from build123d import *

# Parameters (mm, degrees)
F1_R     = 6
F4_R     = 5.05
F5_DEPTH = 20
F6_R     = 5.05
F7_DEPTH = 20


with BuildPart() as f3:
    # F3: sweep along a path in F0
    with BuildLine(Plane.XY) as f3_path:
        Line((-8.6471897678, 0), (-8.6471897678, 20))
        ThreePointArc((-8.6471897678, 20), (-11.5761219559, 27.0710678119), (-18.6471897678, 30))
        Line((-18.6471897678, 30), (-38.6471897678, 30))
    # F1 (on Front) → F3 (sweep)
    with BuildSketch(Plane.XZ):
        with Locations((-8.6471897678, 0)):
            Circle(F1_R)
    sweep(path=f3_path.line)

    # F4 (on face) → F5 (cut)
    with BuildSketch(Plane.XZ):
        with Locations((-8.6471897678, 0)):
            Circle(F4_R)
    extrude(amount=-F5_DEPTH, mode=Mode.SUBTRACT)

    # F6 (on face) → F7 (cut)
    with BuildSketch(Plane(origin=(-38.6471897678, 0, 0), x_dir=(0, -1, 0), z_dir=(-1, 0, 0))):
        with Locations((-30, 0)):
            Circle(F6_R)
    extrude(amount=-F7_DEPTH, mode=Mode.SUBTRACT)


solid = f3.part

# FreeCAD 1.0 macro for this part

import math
import FreeCAD as App
import Part
import Sketcher
Q = App.Units.Quantity

doc = App.newDocument("Part")
body = doc.addObject("PartDesign::Body", "Body")

sketch1 = doc.addObject("Sketcher::SketchObject", "Sketch")
body.addObject(sketch1)
sketch1.AttachmentSupport = (doc.XZ_Plane, [""])
sketch1.MapMode = "FlatFace"
sketch1.addGeometry(Part.Circle(App.Vector(-9, 0, 0), App.Vector(0, 0, 1), 6), False)
sketch1.addConstraint([
    Sketcher.Constraint("PointOnObject", 0, 3, -1),
    Sketcher.Constraint("Diameter", 0, Q("12 mm")),
    Sketcher.Constraint("DistanceX", 0, 3, -1, 1, Q("8.64719 mm")),
])

sketch2 = doc.addObject("Sketcher::SketchObject", "Sketch001")
body.addObject(sketch2)
sketch2.AttachmentSupport = (doc.XY_Plane, [""])
sketch2.MapMode = "FlatFace"
sketch2.addGeometry([
    Part.LineSegment(App.Vector(-9, 0, 0), App.Vector(-9, 20, 0)),
    Part.ArcOfCircle(Part.Circle(App.Vector(-19, 20, 0), App.Vector(0, 0, 1), 10), math.radians(0), math.radians(90)),
    Part.LineSegment(App.Vector(-19, 30, 0), App.Vector(-39, 30, 0)),
], False)
sketch2.addConstraint([
    Sketcher.Constraint("Tangent", 0, 2, 1, 1),
    Sketcher.Constraint("Tangent", 1, 2, 2, 1),
    Sketcher.Constraint("Vertical", 0),
    Sketcher.Constraint("Horizontal", 2),
    Sketcher.Constraint("PointOnObject", 0, 1, -1),
    Sketcher.Constraint("Equal", 2, 0),
    Sketcher.Constraint("Radius", 1, Q("10 mm")),
    Sketcher.Constraint("DistanceX", 2, 2, 2, 1, Q("20 mm")),
    Sketcher.Constraint("DistanceX", 1, 3, -1, 1, Q("18.64719 mm")),
])
doc.recompute()

additivepipe = doc.addObject("PartDesign::AdditivePipe", "AdditivePipe")
body.addObject(additivepipe)
additivepipe.Profile = sketch1
additivepipe.Spine = (sketch2, ["Edge1", "Edge2", "Edge3"])

sketch3 = doc.addObject("Sketcher::SketchObject", "Sketch002")
body.addObject(sketch3)
sketch3.AttachmentSupport = (doc.XZ_Plane, [""])
sketch3.MapMode = "FlatFace"
sketch3.addGeometry(Part.Circle(App.Vector(-9, 0, 0), App.Vector(0, 0, 1), 5), False)
sketch3.addConstraint([
    Sketcher.Constraint("PointOnObject", 0, 3, -1),
    Sketcher.Constraint("Diameter", 0, Q("10.1 mm")),
    Sketcher.Constraint("DistanceX", 0, 3, -1, 1, Q("8.64719 mm")),
])
pocket1 = doc.addObject("PartDesign::Pocket", "Pocket")
body.addObject(pocket1)
pocket1.Profile = sketch3
pocket1.Length = 20

sketch4 = doc.addObject("Sketcher::SketchObject", "Sketch003")
body.addObject(sketch4)
sketch4.AttachmentSupport = (doc.YZ_Plane, [""])
sketch4.MapMode = "FlatFace"
sketch4.AttachmentOffset = App.Placement(App.Vector(0, 0, -38.64719), App.Rotation())
sketch4.addGeometry(Part.Circle(App.Vector(30, 0, 0), App.Vector(0, 0, 1), 5), False)
sketch4.addConstraint([
    Sketcher.Constraint("PointOnObject", 0, 3, -1),
    Sketcher.Constraint("Diameter", 0, Q("10.1 mm")),
    Sketcher.Constraint("DistanceX", -1, 1, 0, 3, Q("30 mm")),
])
pocket2 = doc.addObject("PartDesign::Pocket", "Pocket001")
body.addObject(pocket2)
pocket2.Profile = sketch4
pocket2.Length = 20
pocket2.Reversed = True

doc.recompute()
